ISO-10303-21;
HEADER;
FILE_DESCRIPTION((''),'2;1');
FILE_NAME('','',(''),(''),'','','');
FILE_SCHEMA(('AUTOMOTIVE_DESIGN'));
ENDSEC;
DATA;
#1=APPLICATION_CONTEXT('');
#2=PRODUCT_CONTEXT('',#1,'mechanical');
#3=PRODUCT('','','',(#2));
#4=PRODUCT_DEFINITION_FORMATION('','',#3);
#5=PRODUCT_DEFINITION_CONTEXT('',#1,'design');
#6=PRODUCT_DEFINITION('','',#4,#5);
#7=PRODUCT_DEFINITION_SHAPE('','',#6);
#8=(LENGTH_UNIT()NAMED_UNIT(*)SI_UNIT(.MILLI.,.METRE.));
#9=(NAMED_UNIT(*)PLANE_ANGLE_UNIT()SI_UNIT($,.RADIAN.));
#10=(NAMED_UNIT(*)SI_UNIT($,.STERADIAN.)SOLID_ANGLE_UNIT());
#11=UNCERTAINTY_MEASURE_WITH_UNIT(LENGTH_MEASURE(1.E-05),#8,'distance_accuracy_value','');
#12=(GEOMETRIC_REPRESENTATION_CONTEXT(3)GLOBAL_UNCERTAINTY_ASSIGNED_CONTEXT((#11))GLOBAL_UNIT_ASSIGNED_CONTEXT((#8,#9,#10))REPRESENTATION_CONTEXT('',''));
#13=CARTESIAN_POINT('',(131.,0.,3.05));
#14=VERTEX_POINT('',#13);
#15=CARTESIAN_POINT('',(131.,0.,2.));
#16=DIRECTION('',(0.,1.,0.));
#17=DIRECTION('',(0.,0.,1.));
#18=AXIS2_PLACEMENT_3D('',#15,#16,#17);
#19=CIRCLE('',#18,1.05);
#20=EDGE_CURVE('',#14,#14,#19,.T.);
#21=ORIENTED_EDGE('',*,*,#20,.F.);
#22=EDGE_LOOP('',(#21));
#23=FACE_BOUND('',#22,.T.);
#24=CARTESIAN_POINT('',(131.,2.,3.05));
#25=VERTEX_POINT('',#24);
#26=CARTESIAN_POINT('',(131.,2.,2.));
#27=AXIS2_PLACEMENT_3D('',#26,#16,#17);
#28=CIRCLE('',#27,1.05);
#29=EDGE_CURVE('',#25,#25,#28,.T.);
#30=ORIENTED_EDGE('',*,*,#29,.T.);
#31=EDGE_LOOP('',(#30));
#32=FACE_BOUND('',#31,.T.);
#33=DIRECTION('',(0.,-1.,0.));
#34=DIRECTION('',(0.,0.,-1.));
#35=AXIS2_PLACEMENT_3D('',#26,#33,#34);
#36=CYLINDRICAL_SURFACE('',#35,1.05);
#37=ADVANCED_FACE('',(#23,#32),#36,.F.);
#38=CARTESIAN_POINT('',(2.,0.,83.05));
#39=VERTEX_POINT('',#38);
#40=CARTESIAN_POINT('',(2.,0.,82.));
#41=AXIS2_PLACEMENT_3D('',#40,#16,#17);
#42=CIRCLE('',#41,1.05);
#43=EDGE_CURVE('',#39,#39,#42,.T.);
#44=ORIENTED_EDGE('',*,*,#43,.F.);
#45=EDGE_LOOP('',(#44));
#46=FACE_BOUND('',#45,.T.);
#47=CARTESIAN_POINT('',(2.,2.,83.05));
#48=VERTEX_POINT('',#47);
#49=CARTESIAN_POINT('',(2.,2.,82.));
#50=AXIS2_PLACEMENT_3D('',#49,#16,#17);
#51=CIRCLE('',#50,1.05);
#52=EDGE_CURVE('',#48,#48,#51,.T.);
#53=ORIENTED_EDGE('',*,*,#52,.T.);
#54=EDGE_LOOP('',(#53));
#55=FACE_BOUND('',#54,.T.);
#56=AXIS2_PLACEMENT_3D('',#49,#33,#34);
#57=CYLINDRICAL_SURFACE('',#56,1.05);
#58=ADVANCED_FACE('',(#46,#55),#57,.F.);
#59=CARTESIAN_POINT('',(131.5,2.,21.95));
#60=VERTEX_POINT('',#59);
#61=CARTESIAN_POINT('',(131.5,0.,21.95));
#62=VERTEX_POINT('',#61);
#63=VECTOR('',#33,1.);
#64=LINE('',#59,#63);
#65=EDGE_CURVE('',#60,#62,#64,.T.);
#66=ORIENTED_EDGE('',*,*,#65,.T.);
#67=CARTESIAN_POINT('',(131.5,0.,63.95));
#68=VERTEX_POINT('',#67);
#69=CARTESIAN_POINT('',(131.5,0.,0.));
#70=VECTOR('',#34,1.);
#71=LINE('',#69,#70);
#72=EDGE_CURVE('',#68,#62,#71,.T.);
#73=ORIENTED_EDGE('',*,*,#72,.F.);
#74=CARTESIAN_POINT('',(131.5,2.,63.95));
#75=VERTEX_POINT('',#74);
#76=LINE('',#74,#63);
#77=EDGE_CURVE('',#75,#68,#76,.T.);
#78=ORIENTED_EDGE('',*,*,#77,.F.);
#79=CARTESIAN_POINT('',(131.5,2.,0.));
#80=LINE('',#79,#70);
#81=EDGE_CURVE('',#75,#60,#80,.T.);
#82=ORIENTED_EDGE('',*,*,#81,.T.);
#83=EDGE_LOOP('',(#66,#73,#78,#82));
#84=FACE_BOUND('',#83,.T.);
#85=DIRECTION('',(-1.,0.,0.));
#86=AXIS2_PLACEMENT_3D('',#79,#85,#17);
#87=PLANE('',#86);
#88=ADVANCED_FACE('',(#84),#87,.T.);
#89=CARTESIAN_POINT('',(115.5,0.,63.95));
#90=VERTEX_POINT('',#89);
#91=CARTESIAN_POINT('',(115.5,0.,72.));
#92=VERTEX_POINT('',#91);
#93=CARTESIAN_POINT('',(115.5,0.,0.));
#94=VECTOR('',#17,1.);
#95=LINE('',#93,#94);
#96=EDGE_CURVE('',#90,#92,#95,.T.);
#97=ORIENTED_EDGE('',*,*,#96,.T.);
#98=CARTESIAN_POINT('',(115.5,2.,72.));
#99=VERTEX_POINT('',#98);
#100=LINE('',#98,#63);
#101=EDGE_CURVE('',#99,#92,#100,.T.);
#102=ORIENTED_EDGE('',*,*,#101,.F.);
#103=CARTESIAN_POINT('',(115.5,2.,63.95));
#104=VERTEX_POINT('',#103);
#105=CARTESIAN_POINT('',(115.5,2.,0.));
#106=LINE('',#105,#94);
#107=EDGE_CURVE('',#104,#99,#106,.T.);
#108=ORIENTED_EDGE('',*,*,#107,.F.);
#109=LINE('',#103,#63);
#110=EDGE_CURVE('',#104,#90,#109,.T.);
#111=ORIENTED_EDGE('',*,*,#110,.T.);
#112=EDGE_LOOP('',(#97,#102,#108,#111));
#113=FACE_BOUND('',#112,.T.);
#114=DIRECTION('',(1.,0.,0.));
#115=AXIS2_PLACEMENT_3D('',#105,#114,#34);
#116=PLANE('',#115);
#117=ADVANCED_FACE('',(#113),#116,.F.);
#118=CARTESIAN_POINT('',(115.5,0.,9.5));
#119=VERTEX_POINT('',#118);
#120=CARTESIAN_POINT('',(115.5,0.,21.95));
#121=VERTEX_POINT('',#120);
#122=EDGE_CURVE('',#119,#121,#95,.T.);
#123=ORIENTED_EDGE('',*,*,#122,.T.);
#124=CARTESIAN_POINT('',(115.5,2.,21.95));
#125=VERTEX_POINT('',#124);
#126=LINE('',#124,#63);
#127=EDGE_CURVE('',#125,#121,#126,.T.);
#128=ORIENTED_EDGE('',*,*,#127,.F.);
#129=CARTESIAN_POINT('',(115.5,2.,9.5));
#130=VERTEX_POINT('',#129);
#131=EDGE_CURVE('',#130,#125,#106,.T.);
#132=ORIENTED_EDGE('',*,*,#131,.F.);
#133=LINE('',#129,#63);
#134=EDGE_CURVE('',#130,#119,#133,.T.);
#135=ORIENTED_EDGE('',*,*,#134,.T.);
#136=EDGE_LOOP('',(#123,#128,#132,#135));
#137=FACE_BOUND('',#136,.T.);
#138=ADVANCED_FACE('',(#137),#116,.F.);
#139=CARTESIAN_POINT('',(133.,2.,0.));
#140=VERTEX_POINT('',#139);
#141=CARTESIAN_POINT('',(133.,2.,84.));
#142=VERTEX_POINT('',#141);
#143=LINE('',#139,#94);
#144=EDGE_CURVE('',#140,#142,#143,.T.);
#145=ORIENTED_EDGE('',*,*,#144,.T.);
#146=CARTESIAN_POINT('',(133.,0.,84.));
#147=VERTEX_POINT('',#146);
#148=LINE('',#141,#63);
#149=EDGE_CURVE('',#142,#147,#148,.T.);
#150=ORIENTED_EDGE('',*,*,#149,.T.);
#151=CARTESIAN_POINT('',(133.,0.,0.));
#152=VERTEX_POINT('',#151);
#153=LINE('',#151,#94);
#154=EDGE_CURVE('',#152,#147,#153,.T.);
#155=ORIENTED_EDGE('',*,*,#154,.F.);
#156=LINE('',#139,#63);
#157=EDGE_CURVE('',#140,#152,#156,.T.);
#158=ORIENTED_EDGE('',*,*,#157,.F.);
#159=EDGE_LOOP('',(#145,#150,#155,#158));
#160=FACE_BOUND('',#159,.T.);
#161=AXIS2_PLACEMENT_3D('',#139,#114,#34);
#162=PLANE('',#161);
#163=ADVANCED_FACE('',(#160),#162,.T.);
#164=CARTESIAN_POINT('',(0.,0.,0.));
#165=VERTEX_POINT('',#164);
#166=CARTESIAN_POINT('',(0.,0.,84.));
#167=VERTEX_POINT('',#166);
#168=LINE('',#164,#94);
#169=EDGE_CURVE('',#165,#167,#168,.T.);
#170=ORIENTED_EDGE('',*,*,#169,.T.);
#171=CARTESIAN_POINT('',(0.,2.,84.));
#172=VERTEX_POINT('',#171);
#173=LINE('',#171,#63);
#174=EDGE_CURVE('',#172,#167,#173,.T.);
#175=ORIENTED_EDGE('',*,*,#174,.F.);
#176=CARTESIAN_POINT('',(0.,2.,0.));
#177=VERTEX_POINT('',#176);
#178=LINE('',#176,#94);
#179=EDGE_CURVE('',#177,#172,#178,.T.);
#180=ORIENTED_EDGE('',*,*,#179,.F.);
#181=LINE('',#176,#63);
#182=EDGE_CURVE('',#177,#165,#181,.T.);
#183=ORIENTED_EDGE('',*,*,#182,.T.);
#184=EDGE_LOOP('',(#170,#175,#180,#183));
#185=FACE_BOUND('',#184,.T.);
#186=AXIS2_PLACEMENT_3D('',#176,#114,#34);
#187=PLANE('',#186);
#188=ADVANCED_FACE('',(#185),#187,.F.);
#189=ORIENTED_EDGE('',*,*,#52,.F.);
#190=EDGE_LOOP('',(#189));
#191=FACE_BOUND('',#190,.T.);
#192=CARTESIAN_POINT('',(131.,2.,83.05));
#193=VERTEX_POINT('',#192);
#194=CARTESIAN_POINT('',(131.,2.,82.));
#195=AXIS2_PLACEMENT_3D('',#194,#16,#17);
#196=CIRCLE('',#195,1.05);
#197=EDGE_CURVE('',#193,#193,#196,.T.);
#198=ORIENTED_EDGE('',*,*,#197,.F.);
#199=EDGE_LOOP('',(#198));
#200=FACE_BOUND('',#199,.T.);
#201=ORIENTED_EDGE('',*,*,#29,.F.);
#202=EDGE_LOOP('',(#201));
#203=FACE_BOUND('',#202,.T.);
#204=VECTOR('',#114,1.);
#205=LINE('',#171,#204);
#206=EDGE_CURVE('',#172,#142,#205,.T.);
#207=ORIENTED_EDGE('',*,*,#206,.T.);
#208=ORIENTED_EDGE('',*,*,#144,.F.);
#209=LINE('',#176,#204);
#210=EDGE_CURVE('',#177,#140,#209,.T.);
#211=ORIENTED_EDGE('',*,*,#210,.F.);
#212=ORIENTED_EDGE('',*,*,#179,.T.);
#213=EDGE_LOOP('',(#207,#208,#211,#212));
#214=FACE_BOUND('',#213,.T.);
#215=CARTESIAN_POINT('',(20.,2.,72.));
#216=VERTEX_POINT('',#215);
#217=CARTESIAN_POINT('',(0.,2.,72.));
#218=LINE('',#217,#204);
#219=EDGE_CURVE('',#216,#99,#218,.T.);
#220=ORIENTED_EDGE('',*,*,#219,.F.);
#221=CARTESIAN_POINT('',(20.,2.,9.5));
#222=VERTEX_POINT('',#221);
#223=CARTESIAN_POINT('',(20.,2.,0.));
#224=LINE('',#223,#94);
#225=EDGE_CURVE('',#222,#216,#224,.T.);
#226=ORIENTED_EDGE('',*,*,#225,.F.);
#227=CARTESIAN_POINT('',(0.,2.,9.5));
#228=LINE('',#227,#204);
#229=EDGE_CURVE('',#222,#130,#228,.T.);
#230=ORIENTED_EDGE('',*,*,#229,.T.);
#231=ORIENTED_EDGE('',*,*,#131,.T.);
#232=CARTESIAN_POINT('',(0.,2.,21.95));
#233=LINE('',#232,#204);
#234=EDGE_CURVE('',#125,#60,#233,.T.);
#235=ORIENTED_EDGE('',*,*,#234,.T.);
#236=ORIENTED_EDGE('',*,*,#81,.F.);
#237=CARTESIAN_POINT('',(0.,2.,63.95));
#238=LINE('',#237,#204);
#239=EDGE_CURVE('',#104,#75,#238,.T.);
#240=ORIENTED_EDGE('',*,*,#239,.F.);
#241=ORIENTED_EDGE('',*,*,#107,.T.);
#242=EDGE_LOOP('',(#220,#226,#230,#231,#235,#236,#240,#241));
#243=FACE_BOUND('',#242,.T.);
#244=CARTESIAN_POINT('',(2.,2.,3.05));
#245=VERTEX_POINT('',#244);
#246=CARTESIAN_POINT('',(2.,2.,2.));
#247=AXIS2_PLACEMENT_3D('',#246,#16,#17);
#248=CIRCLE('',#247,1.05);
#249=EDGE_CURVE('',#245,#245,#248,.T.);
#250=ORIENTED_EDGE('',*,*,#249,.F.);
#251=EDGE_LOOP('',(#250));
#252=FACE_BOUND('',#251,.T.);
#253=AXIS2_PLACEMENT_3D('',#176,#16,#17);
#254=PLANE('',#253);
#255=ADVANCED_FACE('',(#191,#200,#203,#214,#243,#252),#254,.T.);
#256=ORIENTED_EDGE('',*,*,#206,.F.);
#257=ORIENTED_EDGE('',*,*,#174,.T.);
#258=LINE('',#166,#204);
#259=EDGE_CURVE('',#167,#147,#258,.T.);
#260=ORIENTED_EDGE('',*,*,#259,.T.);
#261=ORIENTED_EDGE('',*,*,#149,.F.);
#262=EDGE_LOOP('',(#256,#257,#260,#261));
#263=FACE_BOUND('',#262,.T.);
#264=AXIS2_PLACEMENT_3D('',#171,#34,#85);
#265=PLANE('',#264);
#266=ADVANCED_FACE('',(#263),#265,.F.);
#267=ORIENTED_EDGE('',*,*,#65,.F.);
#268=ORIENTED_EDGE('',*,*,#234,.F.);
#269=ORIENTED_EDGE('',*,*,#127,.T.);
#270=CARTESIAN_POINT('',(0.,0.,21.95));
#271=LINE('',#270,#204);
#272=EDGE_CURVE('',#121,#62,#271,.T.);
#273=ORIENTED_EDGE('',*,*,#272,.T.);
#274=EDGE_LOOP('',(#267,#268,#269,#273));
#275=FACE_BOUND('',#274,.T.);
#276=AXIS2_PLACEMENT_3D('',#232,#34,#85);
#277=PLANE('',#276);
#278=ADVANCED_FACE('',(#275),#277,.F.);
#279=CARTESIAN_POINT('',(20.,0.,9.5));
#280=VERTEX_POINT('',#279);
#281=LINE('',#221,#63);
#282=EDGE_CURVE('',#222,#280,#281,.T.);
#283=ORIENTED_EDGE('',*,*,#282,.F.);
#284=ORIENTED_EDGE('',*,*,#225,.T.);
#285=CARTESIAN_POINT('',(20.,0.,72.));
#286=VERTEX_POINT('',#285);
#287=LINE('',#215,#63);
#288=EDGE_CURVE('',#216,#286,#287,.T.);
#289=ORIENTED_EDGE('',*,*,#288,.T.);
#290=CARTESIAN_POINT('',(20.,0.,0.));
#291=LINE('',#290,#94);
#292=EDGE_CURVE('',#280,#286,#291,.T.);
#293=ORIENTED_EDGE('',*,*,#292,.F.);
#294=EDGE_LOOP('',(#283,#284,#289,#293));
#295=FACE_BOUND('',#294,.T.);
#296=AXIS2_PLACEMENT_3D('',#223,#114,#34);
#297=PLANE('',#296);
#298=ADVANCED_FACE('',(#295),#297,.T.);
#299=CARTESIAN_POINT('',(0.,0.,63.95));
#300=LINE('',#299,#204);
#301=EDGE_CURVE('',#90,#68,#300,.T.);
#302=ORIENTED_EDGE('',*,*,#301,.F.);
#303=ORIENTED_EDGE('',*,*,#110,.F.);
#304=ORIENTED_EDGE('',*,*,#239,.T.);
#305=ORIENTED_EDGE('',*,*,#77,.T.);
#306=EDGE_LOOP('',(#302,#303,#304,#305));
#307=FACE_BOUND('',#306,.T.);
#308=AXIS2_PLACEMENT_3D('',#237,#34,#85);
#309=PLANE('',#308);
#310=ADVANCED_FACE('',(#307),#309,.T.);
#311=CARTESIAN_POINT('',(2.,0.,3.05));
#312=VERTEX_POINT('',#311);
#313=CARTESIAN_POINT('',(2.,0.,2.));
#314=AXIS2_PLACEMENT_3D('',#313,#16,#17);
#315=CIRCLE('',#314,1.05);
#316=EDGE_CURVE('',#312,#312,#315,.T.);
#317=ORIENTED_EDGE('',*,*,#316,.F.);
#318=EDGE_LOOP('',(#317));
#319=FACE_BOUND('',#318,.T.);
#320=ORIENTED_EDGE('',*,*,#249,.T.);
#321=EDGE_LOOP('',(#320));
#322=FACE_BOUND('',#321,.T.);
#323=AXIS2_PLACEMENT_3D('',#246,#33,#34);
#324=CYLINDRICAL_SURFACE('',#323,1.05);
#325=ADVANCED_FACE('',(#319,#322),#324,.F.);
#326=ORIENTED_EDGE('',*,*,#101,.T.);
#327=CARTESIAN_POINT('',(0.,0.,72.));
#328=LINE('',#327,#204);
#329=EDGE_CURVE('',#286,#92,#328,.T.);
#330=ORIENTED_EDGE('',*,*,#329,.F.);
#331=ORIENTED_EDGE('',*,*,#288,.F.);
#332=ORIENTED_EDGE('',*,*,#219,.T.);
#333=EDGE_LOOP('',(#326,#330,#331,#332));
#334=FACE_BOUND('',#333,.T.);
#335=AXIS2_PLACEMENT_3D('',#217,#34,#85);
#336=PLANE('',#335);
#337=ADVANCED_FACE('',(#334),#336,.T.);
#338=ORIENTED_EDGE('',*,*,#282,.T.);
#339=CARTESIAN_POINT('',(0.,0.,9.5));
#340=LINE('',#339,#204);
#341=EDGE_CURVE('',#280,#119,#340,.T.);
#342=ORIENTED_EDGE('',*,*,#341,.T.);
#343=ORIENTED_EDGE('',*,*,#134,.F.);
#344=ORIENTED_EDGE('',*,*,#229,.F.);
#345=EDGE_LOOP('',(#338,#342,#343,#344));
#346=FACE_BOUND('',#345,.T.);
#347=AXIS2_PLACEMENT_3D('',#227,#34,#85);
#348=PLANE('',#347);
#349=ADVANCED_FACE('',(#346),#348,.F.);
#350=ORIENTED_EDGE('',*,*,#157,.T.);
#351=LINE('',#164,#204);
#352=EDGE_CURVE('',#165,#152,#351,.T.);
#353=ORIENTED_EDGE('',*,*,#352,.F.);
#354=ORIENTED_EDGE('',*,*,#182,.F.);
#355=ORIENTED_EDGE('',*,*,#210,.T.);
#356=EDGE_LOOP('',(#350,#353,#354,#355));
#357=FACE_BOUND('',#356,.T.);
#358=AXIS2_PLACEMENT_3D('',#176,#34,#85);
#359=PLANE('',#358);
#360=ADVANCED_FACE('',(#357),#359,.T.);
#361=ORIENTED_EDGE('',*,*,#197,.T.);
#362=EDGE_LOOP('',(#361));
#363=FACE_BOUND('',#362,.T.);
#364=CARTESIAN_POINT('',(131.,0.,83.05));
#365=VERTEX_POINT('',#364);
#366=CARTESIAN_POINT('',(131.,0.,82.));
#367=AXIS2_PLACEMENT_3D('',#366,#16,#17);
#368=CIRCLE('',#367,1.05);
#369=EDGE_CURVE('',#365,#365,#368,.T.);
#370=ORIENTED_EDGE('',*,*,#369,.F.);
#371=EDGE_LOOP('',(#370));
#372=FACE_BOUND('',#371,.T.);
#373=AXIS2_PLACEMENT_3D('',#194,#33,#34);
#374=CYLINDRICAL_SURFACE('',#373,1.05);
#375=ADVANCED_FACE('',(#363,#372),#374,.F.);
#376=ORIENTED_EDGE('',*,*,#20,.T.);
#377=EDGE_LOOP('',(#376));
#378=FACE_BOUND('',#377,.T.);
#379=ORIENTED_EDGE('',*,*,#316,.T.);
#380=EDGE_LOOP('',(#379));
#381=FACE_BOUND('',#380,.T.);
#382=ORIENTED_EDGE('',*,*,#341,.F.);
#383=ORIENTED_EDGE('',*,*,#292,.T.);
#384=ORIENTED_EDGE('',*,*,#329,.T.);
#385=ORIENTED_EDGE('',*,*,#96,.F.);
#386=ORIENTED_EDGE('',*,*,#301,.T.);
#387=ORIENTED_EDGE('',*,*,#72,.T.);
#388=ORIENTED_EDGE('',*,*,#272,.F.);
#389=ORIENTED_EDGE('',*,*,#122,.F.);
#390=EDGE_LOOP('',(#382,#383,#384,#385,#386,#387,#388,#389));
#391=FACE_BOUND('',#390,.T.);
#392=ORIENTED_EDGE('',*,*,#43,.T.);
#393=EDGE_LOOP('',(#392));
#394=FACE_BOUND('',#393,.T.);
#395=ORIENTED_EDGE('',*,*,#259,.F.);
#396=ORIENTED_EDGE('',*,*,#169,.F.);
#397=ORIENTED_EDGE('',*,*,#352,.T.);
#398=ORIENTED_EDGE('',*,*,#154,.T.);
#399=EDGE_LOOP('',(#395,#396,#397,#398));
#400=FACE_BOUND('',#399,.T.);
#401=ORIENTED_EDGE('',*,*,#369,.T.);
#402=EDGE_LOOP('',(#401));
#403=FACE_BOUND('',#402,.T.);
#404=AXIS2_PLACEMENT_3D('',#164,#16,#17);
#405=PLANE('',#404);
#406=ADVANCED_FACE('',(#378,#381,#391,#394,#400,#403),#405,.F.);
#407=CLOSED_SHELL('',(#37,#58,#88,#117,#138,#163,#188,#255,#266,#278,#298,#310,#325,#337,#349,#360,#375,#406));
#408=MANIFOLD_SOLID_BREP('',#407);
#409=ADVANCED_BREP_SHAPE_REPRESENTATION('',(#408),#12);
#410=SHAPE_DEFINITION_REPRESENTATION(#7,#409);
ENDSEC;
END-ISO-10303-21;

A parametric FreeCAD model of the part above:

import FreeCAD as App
import Part
import Sketcher
Q = App.Units.Quantity


def add_polygon(sketch, points):
    """Adds a closed chain of lines whose ends are joined by coincident constraints."""
    first, n = sketch.GeometryCount, len(points)
    for a, b in zip(points, points[1:] + points[:1]):
        sketch.addGeometry(Part.LineSegment(App.Vector(*a, 0), App.Vector(*b, 0)), False)
    for i in range(n):
        sketch.addConstraint(Sketcher.Constraint("Coincident", first + i, 2, first + (i + 1) % n, 1))

doc = App.newDocument("Part")
body = doc.addObject("PartDesign::Body", "Body")

sketch1 = doc.addObject("Sketcher::SketchObject", "Sketch")
body.addObject(sketch1)
sketch1.AttachmentSupport = (doc.XZ_Plane, [""])
sketch1.MapMode = "FlatFace"
add_polygon(sketch1, [(0, 0), (0, 84), (133, 84), (133, 0)])
sketch1.addGeometry(Part.Circle(App.Vector(2, 82, 0), App.Vector(0, 0, 1), 1.05), False)
sketch1.addGeometry(Part.Circle(App.Vector(131, 82, 0), App.Vector(0, 0, 1), 1.05), False)
sketch1.addGeometry(Part.Circle(App.Vector(2, 2, 0), App.Vector(0, 0, 1), 1.05), False)
add_polygon(sketch1, [(115.5, 72), (20, 72), (20, 9.5), (115.5, 9.5), (115.5, 21.95), (131.5, 21.95), (131.5, 63.95), (115.5, 63.95)])
sketch1.addGeometry(Part.Circle(App.Vector(131, 2, 0), App.Vector(0, 0, 1), 1.05), False)
sketch1.addConstraint(Sketcher.Constraint("Vertical", 0))
sketch1.addConstraint(Sketcher.Constraint("Horizontal", 1))
sketch1.addConstraint(Sketcher.Constraint("Vertical", 2))
sketch1.addConstraint(Sketcher.Constraint("Horizontal", 3))
sketch1.addConstraint(Sketcher.Constraint("Horizontal", 7))
sketch1.addConstraint(Sketcher.Constraint("Vertical", 8))
sketch1.addConstraint(Sketcher.Constraint("Horizontal", 9))
sketch1.addConstraint(Sketcher.Constraint("Vertical", 10))
sketch1.addConstraint(Sketcher.Constraint("Horizontal", 11))
sketch1.addConstraint(Sketcher.Constraint("Vertical", 12))
sketch1.addConstraint(Sketcher.Constraint("Horizontal", 13))
sketch1.addConstraint(Sketcher.Constraint("Vertical", 14))
sketch1.addConstraint(Sketcher.Constraint("Coincident", 3, 2, -1, 1))
sketch1.addConstraint(Sketcher.Constraint("Equal", 4, 5))
sketch1.addConstraint(Sketcher.Constraint("Equal", 5, 6))
sketch1.addConstraint(Sketcher.Constraint("Equal", 6, 15))
sketch1.addConstraint(Sketcher.Constraint("Horizontal", 4, 3, 5, 3))
sketch1.addConstraint(Sketcher.Constraint("Horizontal", 6, 3, 15, 3))
sketch1.addConstraint(Sketcher.Constraint("Vertical", 4, 3, 6, 3))
sketch1.addConstraint(Sketcher.Constraint("Vertical", 5, 3, 15, 3))
sketch1.addConstraint(Sketcher.Constraint("Vertical", 10, 2, 13, 2))
sketch1.addConstraint(Sketcher.Constraint("Diameter", 4, Q("2.1 mm")))
sketch1.addConstraint(Sketcher.Constraint("DistanceX", 1, 1, 1, 2, Q("133 mm")))
sketch1.addConstraint(Sketcher.Constraint("DistanceX", 11, 1, 11, 2, Q("16 mm")))
sketch1.addConstraint(Sketcher.Constraint("DistanceY", 0, 1, 0, 2, Q("84 mm")))
sketch1.addConstraint(Sketcher.Constraint("DistanceY", 12, 1, 12, 2, Q("42 mm")))
sketch1.addConstraint(Sketcher.Constraint("DistanceX", 7, 2, 7, 1, Q("95.5 mm")))
sketch1.addConstraint(Sketcher.Constraint("DistanceY", 8, 2, 8, 1, Q("62.5 mm")))
sketch1.addConstraint(Sketcher.Constraint("DistanceX", -1, 1, 4, 3, Q("2 mm")))
sketch1.addConstraint(Sketcher.Constraint("DistanceY", -1, 1, 4, 3, Q("82 mm")))
sketch1.addConstraint(Sketcher.Constraint("DistanceX", -1, 1, 5, 3, Q("131 mm")))
sketch1.addConstraint(Sketcher.Constraint("DistanceY", -1, 1, 6, 3, Q("2 mm")))
sketch1.addConstraint(Sketcher.Constraint("DistanceX", -1, 1, 7, 2, Q("20 mm")))
sketch1.addConstraint(Sketcher.Constraint("DistanceY", -1, 1, 7, 2, Q("72 mm")))
sketch1.addConstraint(Sketcher.Constraint("DistanceY", 10, 1, 10, 2, Q("12.45 mm")))
pad1 = doc.addObject("PartDesign::Pad", "Pad")
body.addObject(pad1)
pad1.Profile = sketch1
pad1.Length = 2
pad1.Reversed = True

doc.recompute()
